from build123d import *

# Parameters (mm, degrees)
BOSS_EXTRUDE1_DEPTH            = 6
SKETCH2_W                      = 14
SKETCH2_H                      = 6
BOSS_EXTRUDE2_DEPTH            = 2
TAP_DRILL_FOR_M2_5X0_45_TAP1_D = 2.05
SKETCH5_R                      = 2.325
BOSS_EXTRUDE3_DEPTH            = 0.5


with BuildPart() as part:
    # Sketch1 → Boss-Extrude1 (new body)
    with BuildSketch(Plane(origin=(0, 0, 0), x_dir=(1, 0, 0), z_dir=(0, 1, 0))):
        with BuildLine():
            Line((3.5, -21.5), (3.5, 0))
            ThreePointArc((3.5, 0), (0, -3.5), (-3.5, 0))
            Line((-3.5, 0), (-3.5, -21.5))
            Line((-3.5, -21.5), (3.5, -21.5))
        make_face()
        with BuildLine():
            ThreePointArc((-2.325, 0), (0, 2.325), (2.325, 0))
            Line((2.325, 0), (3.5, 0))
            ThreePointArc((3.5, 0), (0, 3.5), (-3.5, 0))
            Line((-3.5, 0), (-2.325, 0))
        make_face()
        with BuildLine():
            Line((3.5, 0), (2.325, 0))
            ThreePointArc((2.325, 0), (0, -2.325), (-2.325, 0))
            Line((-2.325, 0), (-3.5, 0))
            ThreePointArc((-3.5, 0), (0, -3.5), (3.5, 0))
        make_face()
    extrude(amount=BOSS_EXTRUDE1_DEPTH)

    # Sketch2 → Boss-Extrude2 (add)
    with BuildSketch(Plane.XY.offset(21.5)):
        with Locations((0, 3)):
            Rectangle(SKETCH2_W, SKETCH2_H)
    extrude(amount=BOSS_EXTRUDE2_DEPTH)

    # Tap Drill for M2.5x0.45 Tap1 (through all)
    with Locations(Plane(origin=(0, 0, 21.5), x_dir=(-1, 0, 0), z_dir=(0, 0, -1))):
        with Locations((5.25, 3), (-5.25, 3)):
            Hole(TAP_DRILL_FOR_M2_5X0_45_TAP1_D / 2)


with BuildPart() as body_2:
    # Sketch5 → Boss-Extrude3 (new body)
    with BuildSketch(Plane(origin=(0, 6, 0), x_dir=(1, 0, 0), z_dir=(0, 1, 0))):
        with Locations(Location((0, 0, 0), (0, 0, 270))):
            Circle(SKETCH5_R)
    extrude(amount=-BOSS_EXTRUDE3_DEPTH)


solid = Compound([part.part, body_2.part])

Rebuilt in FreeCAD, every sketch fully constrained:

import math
import FreeCAD as App
import Part
import Sketcher
Q = App.Units.Quantity


def add_polygon(sketch, points):
    """Adds a closed chain of lines whose ends are joined by coincident constraints."""
    first, n = sketch.GeometryCount, len(points)
    for a, b in zip(points, points[1:] + points[:1]):
        sketch.addGeometry(Part.LineSegment(App.Vector(*a, 0), App.Vector(*b, 0)), False)
    for i in range(n):
        sketch.addConstraint(Sketcher.Constraint("Coincident", first + i, 2, first + (i + 1) % n, 1))

doc = App.newDocument("Part")
body = doc.addObject("PartDesign::Body", "Body")

# Sketch on XZ plane
sketch1 = doc.addObject("Sketcher::SketchObject", "Sketch")
body.addObject(sketch1)
sketch1.AttachmentSupport = (doc.XZ_Plane, [""])
sketch1.MapMode = "FlatFace"
sketch1.addGeometry([
    Part.LineSegment(App.Vector(-3.5, 0, 0), App.Vector(-3.5, 21.5, 0)),  # 0
    Part.LineSegment(App.Vector(-3.5, 21.5, 0), App.Vector(3.5, 21.5, 0)),  # 1
    Part.LineSegment(App.Vector(3.5, 21.5, 0), App.Vector(3.5, 0, 0)),  # 2
    Part.ArcOfCircle(Part.Circle(App.Vector(0, 0, 0), App.Vector(0, 0, 1), 3.5), math.radians(180), math.radians(360)),  # 3
    Part.Circle(App.Vector(0, 0, 0), App.Vector(0, 0, 1), 2.325),  # 4
], False)
sketch1.addConstraint([
    Sketcher.Constraint("Coincident", 0, 2, 1, 1),
    Sketcher.Constraint("Coincident", 1, 2, 2, 1),
    Sketcher.Constraint("Tangent", 2, 2, 3, 2),
    Sketcher.Constraint("Tangent", 3, 1, 0, 1),
    Sketcher.Constraint("Vertical", 0),
    Sketcher.Constraint("Horizontal", 1),
    Sketcher.Constraint("Vertical", 2),
    Sketcher.Constraint("Coincident", 3, 3, -1, 1),
    Sketcher.Constraint("Coincident", 4, 3, -1, 1),
    Sketcher.Constraint("Radius", 3, Q("3.5 mm")),
    Sketcher.Constraint("Diameter", 4, Q("4.65 mm")),
    Sketcher.Constraint("DistanceY", 0, 1, 0, 2, Q("21.5 mm")),
])
pad1 = doc.addObject("PartDesign::Pad", "Pad")
body.addObject(pad1)
pad1.Profile = sketch1
pad1.Length = 6
pad1.Reversed = True

# Sketch on XY plane
sketch2 = doc.addObject("Sketcher::SketchObject", "Sketch001")
body.addObject(sketch2)
sketch2.AttachmentSupport = (doc.XY_Plane, [""])
sketch2.MapMode = "FlatFace"
sketch2.AttachmentOffset = App.Placement(App.Vector(0, 0, 21.5), App.Rotation())
add_polygon(sketch2, [(-7, 6), (-7, 0), (7, 0), (7, 6)])  # lines 0-3
sketch2.addConstraint([
    Sketcher.Constraint("Vertical", 0),
    Sketcher.Constraint("Horizontal", 1),
    Sketcher.Constraint("Vertical", 2),
    Sketcher.Constraint("Horizontal", 3),
    Sketcher.Constraint("Symmetric", 0, 2, 1, 2, -1, 1),
    Sketcher.Constraint("DistanceX", 1, 1, 1, 2, Q("14 mm")),
    Sketcher.Constraint("DistanceY", 0, 2, 0, 1, Q("6 mm")),
])
pad2 = doc.addObject("PartDesign::Pad", "Pad001")
body.addObject(pad2)
pad2.Profile = sketch2
pad2.Length = 2

# Sketch on XY plane
sketch3 = doc.addObject("Sketcher::SketchObject", "Sketch002")
body.addObject(sketch3)
sketch3.AttachmentSupport = (doc.XY_Plane, [""])
sketch3.MapMode = "FlatFace"
sketch3.AttachmentOffset = App.Placement(App.Vector(0, 0, 21.5), App.Rotation())
sketch3.addGeometry([
    Part.Circle(App.Vector(-5.25, 3, 0), App.Vector(0, 0, 1), 1.025),
    Part.Circle(App.Vector(5.25, 3, 0), App.Vector(0, 0, 1), 1.025),
], False)
sketch3.addConstraint([
    Sketcher.Constraint("Equal", 0, 1),
    Sketcher.Constraint("Symmetric", 0, 3, 1, 3, -2),
    Sketcher.Constraint("Diameter", 0, Q("2.05 mm")),
    Sketcher.Constraint("DistanceY", -1, 1, 0, 3, Q("3 mm")),
    Sketcher.Constraint("DistanceX", 0, 3, 1, 3, Q("10.5 mm")),
])
doc.recompute()
hole = doc.addObject("PartDesign::Hole", "Hole")
body.addObject(hole)
hole.Profile = sketch3
hole.ThreadType = "None"
hole.Diameter = 2.05
hole.DepthType = "ThroughAll"
hole.Reversed = True
body2 = doc.addObject("PartDesign::Body", "Body001")

# Sketch on XZ plane
sketch4 = doc.addObject("Sketcher::SketchObject", "Sketch003")
body2.addObject(sketch4)
sketch4.AttachmentSupport = (doc.getObject("XZ_Plane001"), [""])
sketch4.MapMode = "FlatFace"
sketch4.AttachmentOffset = App.Placement(App.Vector(0, 0, -6), App.Rotation())
sketch4.addGeometry(Part.Circle(App.Vector(0, 0, 0), App.Vector(0, 0, 1), 2.325), False)
sketch4.addConstraint([
    Sketcher.Constraint("Coincident", 0, 3, -1, 1),
    Sketcher.Constraint("Diameter", 0, Q("4.65 mm")),
])
pad3 = doc.addObject("PartDesign::Pad", "Pad002")
body2.addObject(pad3)
pad3.Profile = sketch4
pad3.Length = 0.5

doc.recompute()
